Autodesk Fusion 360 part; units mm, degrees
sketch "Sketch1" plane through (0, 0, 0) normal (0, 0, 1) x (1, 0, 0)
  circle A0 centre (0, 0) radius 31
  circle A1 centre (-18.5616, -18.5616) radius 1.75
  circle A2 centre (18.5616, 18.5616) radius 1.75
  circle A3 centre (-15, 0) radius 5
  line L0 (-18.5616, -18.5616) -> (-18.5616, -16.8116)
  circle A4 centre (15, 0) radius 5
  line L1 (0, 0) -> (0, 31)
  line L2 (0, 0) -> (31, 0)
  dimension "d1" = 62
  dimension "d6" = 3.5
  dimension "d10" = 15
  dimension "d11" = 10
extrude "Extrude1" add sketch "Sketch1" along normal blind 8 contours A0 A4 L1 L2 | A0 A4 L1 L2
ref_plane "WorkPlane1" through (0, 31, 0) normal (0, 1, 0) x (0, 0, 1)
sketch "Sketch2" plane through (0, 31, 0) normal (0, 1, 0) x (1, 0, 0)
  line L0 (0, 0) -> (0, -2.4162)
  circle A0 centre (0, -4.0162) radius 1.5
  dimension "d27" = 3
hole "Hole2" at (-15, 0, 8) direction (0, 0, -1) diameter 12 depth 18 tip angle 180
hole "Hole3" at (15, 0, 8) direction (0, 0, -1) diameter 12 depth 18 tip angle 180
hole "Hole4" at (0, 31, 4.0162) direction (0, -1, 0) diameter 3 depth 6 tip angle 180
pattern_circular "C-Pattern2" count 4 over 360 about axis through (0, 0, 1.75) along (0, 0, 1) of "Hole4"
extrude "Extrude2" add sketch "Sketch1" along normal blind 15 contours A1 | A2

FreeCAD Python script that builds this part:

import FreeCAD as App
import Part
import Sketcher
from FreeCAD import Vector
Q = App.Units.Quantity

doc = App.newDocument("Part")
params = doc.addObject("Spreadsheet::Sheet", "Params")
for row, (alias, value) in enumerate([
    ("sketch1_diameter", "62 mm"),
    ("sketch1_diameter2", "10 mm"),
    ("sketch1_diameter3", "3.5 mm"),
    ("pad1_length", "8 mm"),
    ("sketch2_diameter", "12 mm"),
    ("hole_diameter", "12 mm"),
    ("hole_depth", "18 mm"),
    ("sketch3_diameter", "12 mm"),
    ("hole2_diameter", "12 mm"),
    ("hole2_depth", "18 mm"),
    ("sketch4_diameter", "3 mm"),
    ("hole3_diameter", "3 mm"),
    ("hole3_depth", "6 mm"),
    ("sketch5_diameter", "3.5 mm"),
    ("pad2_length", "15 mm"),
], start=1):
    params.set(f"A{row}", alias)
    params.set(f"B{row}", "=" + value)
    params.setAlias(f"B{row}", alias)

body = doc.addObject("PartDesign::Body", "Body")

sketch1 = body.newObject("Sketcher::SketchObject", "Sketch")
sketch1.AttachmentSupport = (doc.getObject("XY_Plane"), [""])
sketch1.MapMode = "FlatFace"
sketch1.addGeometry(Part.Circle(Vector(0, 0, 0), Vector(0, 0, 1), 31), False)
sketch1.addGeometry(Part.Circle(Vector(15, 0, 0), Vector(0, 0, 1), 5), False)
sketch1.addGeometry(Part.Circle(Vector(18.6, 18.6, 0), Vector(0, 0, 1), 1.8), False)
sketch1.addGeometry(Part.Circle(Vector(-18.6, -18.6, 0), Vector(0, 0, 1), 1.8), False)
sketch1.addGeometry(Part.Circle(Vector(-15, 0, 0), Vector(0, 0, 1), 5), False)
sketch1.addConstraint(Sketcher.Constraint("Coincident", 0, 3, -1, 1))
sketch1.addConstraint(Sketcher.Constraint("Equal", 2, 3))
sketch1.addConstraint(Sketcher.Constraint("Equal", 1, 4))
sketch1.addConstraint(Sketcher.Constraint("Symmetric", 2, 3, 3, 3, -1, 1))
sketch1.addConstraint(Sketcher.Constraint("Symmetric", 1, 3, 4, 3, -1, 1))
sketch1.addConstraint(Sketcher.Constraint("PointOnObject", 1, 3, -1))
sketch1.addConstraint(Sketcher.Constraint("Diameter", 0, Q("62 mm")))
sketch1.addConstraint(Sketcher.Constraint("Diameter", 1, Q("10 mm")))
sketch1.addConstraint(Sketcher.Constraint("Diameter", 2, Q("3.5 mm")))
sketch1.addConstraint(Sketcher.Constraint("DistanceX", -1, 1, 1, 3, Q("15 mm")))
sketch1.addConstraint(Sketcher.Constraint("DistanceX", -1, 1, 2, 3, Q("18.5616 mm")))
sketch1.addConstraint(Sketcher.Constraint("DistanceY", -1, 1, 2, 3, Q("18.5616 mm")))
sketch1.setExpression("Constraints[6]", "Params.sketch1_diameter")
sketch1.setExpression("Constraints[7]", "Params.sketch1_diameter2")
sketch1.setExpression("Constraints[8]", "Params.sketch1_diameter3")
pad1 = body.newObject("PartDesign::Pad", "Pad")
pad1.Profile = sketch1
pad1.setExpression("Length", "Params.pad1_length")

sketch2 = body.newObject("Sketcher::SketchObject", "Sketch001")
sketch2.AttachmentSupport = (doc.getObject("XY_Plane"), [""])
sketch2.MapMode = "FlatFace"
sketch2.AttachmentOffset = App.Placement(Vector(0, 0, 8), App.Rotation())
sketch2.addGeometry(Part.Circle(Vector(-15, 0, 0), Vector(0, 0, 1), 6), False)
sketch2.addConstraint(Sketcher.Constraint("PointOnObject", 0, 3, -1))
sketch2.addConstraint(Sketcher.Constraint("Diameter", 0, Q("12 mm")))
sketch2.addConstraint(Sketcher.Constraint("DistanceX", 0, 3, -1, 1, Q("15 mm")))
sketch2.setExpression("Constraints[1]", "Params.sketch2_diameter")
doc.recompute()
hole = body.newObject("PartDesign::Hole", "Hole")
hole.Profile = sketch2
hole.ThreadType = "None"
hole.setExpression("Diameter", "Params.hole_diameter")
hole.DepthType = "Dimension"
hole.setExpression("Depth", "Params.hole_depth")
hole.DrillPoint = "Flat"

sketch3 = body.newObject("Sketcher::SketchObject", "Sketch002")
sketch3.AttachmentSupport = (doc.getObject("XY_Plane"), [""])
sketch3.MapMode = "FlatFace"
sketch3.AttachmentOffset = App.Placement(Vector(0, 0, 8), App.Rotation())
sketch3.addGeometry(Part.Circle(Vector(15, 0, 0), Vector(0, 0, 1), 6), False)
sketch3.addConstraint(Sketcher.Constraint("PointOnObject", 0, 3, -1))
sketch3.addConstraint(Sketcher.Constraint("Diameter", 0, Q("12 mm")))
sketch3.addConstraint(Sketcher.Constraint("DistanceX", -1, 1, 0, 3, Q("15 mm")))
sketch3.setExpression("Constraints[1]", "Params.sketch3_diameter")
doc.recompute()
hole2 = body.newObject("PartDesign::Hole", "Hole001")
hole2.Profile = sketch3
hole2.ThreadType = "None"
hole2.setExpression("Diameter", "Params.hole2_diameter")
hole2.DepthType = "Dimension"
hole2.setExpression("Depth", "Params.hole2_depth")
hole2.DrillPoint = "Flat"

sketch4 = body.newObject("Sketcher::SketchObject", "Sketch003")
sketch4.AttachmentSupport = (doc.getObject("XZ_Plane"), [""])
sketch4.MapMode = "FlatFace"
sketch4.AttachmentOffset = App.Placement(Vector(0, 0, -31), App.Rotation())
sketch4.addGeometry(Part.Circle(Vector(0, 4, 0), Vector(0, 0, 1), 1.5), False)
sketch4.addConstraint(Sketcher.Constraint("PointOnObject", 0, 3, -2))
sketch4.addConstraint(Sketcher.Constraint("Diameter", 0, Q("3 mm")))
sketch4.addConstraint(Sketcher.Constraint("DistanceY", -1, 1, 0, 3, Q("4.0162 mm")))
sketch4.setExpression("Constraints[1]", "Params.sketch4_diameter")
doc.recompute()
hole3 = body.newObject("PartDesign::Hole", "Hole002")
hole3.Profile = sketch4
hole3.ThreadType = "None"
hole3.setExpression("Diameter", "Params.hole3_diameter")
hole3.DepthType = "Dimension"
hole3.setExpression("Depth", "Params.hole3_depth")
hole3.DrillPoint = "Flat"
hole3.Reversed = True
doc.recompute()

polarpattern = body.newObject("PartDesign::PolarPattern", "PolarPattern")
polarpattern.Originals = [hole3]
polarpattern.Axis = (doc.getObject("Z_Axis"), [""])
polarpattern.Angle = 360
polarpattern.Occurrences = 4
body.Tip = polarpattern

sketch5 = body.newObject("Sketcher::SketchObject", "Sketch004")
sketch5.AttachmentSupport = (doc.getObject("XY_Plane"), [""])
sketch5.MapMode = "FlatFace"
sketch5.addGeometry(Part.Circle(Vector(-18.6, -18.6, 0), Vector(0, 0, 1), 1.8), False)
sketch5.addGeometry(Part.Circle(Vector(18.6, 18.6, 0), Vector(0, 0, 1), 1.8), False)
sketch5.addConstraint(Sketcher.Constraint("Equal", 0, 1))
sketch5.addConstraint(Sketcher.Constraint("Symmetric", 0, 3, 1, 3, -1, 1))
sketch5.addConstraint(Sketcher.Constraint("Diameter", 0, Q("3.5 mm")))
sketch5.addConstraint(Sketcher.Constraint("DistanceX", 0, 3, -1, 1, Q("18.5616 mm")))
sketch5.addConstraint(Sketcher.Constraint("DistanceY", 0, 3, -1, 1, Q("18.5616 mm")))
sketch5.setExpression("Constraints[2]", "Params.sketch5_diameter")
pad2 = body.newObject("PartDesign::Pad", "Pad001")
pad2.Profile = sketch5
pad2.setExpression("Length", "Params.pad2_length")

doc.recompute()
